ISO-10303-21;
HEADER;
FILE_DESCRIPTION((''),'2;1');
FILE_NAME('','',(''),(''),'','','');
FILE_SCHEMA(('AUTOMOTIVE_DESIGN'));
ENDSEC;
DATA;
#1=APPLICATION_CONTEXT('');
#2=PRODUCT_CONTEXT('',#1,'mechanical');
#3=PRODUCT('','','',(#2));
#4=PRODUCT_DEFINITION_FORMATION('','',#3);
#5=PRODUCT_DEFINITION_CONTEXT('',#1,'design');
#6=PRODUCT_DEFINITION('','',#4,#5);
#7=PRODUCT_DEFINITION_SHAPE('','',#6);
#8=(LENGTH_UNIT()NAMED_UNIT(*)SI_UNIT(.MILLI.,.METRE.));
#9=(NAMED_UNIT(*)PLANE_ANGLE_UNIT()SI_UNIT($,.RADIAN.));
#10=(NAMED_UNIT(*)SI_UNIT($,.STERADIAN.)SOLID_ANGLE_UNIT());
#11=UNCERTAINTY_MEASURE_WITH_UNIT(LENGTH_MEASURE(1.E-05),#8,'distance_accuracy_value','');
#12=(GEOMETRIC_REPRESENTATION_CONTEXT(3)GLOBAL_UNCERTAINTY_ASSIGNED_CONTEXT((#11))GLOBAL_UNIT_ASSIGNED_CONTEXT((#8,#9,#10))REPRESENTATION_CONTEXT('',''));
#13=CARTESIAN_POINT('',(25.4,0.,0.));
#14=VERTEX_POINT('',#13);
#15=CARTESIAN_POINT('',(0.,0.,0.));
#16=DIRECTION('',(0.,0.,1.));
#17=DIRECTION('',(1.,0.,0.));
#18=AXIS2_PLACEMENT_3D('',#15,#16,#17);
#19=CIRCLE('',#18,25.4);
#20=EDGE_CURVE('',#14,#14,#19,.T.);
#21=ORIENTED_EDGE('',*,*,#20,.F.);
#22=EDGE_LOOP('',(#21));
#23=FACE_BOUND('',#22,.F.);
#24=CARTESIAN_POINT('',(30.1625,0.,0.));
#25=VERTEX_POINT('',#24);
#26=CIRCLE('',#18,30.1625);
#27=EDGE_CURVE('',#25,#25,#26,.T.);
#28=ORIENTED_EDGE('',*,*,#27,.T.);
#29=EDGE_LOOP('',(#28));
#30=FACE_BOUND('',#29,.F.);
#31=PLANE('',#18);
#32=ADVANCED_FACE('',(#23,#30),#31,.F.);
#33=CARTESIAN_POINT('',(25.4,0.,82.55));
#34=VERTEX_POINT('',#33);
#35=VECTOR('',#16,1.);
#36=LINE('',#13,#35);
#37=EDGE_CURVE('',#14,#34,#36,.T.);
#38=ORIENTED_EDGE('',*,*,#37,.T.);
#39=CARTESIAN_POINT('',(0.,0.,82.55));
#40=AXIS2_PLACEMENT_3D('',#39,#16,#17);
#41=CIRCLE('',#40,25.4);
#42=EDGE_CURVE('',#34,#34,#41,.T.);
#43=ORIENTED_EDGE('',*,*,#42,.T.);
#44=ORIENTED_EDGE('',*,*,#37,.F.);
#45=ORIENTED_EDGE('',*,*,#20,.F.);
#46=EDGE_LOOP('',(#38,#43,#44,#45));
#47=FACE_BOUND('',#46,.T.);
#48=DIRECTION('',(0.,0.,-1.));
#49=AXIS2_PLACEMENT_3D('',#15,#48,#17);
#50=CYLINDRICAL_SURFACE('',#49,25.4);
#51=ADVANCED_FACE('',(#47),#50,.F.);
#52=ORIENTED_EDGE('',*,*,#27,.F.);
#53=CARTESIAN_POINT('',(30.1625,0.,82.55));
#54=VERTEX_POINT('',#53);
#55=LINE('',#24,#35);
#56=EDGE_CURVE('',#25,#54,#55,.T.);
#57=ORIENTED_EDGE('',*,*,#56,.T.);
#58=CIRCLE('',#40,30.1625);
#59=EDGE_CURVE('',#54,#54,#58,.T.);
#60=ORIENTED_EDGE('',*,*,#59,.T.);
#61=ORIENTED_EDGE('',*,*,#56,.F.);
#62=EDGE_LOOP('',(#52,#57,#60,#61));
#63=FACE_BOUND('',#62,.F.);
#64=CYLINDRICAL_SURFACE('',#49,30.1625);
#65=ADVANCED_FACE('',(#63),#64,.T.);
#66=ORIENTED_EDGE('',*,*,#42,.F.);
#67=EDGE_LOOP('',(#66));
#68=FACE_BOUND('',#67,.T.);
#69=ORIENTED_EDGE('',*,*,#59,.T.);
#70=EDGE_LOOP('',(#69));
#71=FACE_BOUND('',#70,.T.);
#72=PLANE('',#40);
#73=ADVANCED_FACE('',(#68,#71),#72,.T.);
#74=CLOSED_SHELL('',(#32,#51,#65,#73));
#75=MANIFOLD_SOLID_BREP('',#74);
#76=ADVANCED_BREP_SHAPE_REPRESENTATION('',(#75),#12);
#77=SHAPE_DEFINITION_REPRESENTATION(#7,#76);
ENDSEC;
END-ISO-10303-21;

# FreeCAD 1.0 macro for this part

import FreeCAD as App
import Part
import Sketcher
Q = App.Units.Quantity

doc = App.newDocument("Part")
body = doc.addObject("PartDesign::Body", "Body")

# Sketch on XY plane
sketch1 = doc.addObject("Sketcher::SketchObject", "Sketch")
body.addObject(sketch1)
sketch1.AttachmentSupport = (doc.XY_Plane, [""])
sketch1.MapMode = "FlatFace"
sketch1.addGeometry(Part.Circle(App.Vector(0, 0, 0), App.Vector(0, 0, 1), 30.1625), False)
sketch1.addGeometry(Part.Circle(App.Vector(0, 0, 0), App.Vector(0, 0, 1), 25.4), False)
sketch1.addConstraint(Sketcher.Constraint("Coincident", 0, 3, -1, 1))
sketch1.addConstraint(Sketcher.Constraint("Coincident", 1, 3, -1, 1))
sketch1.addConstraint(Sketcher.Constraint("Diameter", 1, Q("2 in")))
sketch1.addConstraint(Sketcher.Constraint("Diameter", 0, Q("2.375 in")))
pad1 = doc.addObject("PartDesign::Pad", "Pad")
body.addObject(pad1)
pad1.Profile = sketch1
pad1.Length = Q("3.25 in")

doc.recompute()
